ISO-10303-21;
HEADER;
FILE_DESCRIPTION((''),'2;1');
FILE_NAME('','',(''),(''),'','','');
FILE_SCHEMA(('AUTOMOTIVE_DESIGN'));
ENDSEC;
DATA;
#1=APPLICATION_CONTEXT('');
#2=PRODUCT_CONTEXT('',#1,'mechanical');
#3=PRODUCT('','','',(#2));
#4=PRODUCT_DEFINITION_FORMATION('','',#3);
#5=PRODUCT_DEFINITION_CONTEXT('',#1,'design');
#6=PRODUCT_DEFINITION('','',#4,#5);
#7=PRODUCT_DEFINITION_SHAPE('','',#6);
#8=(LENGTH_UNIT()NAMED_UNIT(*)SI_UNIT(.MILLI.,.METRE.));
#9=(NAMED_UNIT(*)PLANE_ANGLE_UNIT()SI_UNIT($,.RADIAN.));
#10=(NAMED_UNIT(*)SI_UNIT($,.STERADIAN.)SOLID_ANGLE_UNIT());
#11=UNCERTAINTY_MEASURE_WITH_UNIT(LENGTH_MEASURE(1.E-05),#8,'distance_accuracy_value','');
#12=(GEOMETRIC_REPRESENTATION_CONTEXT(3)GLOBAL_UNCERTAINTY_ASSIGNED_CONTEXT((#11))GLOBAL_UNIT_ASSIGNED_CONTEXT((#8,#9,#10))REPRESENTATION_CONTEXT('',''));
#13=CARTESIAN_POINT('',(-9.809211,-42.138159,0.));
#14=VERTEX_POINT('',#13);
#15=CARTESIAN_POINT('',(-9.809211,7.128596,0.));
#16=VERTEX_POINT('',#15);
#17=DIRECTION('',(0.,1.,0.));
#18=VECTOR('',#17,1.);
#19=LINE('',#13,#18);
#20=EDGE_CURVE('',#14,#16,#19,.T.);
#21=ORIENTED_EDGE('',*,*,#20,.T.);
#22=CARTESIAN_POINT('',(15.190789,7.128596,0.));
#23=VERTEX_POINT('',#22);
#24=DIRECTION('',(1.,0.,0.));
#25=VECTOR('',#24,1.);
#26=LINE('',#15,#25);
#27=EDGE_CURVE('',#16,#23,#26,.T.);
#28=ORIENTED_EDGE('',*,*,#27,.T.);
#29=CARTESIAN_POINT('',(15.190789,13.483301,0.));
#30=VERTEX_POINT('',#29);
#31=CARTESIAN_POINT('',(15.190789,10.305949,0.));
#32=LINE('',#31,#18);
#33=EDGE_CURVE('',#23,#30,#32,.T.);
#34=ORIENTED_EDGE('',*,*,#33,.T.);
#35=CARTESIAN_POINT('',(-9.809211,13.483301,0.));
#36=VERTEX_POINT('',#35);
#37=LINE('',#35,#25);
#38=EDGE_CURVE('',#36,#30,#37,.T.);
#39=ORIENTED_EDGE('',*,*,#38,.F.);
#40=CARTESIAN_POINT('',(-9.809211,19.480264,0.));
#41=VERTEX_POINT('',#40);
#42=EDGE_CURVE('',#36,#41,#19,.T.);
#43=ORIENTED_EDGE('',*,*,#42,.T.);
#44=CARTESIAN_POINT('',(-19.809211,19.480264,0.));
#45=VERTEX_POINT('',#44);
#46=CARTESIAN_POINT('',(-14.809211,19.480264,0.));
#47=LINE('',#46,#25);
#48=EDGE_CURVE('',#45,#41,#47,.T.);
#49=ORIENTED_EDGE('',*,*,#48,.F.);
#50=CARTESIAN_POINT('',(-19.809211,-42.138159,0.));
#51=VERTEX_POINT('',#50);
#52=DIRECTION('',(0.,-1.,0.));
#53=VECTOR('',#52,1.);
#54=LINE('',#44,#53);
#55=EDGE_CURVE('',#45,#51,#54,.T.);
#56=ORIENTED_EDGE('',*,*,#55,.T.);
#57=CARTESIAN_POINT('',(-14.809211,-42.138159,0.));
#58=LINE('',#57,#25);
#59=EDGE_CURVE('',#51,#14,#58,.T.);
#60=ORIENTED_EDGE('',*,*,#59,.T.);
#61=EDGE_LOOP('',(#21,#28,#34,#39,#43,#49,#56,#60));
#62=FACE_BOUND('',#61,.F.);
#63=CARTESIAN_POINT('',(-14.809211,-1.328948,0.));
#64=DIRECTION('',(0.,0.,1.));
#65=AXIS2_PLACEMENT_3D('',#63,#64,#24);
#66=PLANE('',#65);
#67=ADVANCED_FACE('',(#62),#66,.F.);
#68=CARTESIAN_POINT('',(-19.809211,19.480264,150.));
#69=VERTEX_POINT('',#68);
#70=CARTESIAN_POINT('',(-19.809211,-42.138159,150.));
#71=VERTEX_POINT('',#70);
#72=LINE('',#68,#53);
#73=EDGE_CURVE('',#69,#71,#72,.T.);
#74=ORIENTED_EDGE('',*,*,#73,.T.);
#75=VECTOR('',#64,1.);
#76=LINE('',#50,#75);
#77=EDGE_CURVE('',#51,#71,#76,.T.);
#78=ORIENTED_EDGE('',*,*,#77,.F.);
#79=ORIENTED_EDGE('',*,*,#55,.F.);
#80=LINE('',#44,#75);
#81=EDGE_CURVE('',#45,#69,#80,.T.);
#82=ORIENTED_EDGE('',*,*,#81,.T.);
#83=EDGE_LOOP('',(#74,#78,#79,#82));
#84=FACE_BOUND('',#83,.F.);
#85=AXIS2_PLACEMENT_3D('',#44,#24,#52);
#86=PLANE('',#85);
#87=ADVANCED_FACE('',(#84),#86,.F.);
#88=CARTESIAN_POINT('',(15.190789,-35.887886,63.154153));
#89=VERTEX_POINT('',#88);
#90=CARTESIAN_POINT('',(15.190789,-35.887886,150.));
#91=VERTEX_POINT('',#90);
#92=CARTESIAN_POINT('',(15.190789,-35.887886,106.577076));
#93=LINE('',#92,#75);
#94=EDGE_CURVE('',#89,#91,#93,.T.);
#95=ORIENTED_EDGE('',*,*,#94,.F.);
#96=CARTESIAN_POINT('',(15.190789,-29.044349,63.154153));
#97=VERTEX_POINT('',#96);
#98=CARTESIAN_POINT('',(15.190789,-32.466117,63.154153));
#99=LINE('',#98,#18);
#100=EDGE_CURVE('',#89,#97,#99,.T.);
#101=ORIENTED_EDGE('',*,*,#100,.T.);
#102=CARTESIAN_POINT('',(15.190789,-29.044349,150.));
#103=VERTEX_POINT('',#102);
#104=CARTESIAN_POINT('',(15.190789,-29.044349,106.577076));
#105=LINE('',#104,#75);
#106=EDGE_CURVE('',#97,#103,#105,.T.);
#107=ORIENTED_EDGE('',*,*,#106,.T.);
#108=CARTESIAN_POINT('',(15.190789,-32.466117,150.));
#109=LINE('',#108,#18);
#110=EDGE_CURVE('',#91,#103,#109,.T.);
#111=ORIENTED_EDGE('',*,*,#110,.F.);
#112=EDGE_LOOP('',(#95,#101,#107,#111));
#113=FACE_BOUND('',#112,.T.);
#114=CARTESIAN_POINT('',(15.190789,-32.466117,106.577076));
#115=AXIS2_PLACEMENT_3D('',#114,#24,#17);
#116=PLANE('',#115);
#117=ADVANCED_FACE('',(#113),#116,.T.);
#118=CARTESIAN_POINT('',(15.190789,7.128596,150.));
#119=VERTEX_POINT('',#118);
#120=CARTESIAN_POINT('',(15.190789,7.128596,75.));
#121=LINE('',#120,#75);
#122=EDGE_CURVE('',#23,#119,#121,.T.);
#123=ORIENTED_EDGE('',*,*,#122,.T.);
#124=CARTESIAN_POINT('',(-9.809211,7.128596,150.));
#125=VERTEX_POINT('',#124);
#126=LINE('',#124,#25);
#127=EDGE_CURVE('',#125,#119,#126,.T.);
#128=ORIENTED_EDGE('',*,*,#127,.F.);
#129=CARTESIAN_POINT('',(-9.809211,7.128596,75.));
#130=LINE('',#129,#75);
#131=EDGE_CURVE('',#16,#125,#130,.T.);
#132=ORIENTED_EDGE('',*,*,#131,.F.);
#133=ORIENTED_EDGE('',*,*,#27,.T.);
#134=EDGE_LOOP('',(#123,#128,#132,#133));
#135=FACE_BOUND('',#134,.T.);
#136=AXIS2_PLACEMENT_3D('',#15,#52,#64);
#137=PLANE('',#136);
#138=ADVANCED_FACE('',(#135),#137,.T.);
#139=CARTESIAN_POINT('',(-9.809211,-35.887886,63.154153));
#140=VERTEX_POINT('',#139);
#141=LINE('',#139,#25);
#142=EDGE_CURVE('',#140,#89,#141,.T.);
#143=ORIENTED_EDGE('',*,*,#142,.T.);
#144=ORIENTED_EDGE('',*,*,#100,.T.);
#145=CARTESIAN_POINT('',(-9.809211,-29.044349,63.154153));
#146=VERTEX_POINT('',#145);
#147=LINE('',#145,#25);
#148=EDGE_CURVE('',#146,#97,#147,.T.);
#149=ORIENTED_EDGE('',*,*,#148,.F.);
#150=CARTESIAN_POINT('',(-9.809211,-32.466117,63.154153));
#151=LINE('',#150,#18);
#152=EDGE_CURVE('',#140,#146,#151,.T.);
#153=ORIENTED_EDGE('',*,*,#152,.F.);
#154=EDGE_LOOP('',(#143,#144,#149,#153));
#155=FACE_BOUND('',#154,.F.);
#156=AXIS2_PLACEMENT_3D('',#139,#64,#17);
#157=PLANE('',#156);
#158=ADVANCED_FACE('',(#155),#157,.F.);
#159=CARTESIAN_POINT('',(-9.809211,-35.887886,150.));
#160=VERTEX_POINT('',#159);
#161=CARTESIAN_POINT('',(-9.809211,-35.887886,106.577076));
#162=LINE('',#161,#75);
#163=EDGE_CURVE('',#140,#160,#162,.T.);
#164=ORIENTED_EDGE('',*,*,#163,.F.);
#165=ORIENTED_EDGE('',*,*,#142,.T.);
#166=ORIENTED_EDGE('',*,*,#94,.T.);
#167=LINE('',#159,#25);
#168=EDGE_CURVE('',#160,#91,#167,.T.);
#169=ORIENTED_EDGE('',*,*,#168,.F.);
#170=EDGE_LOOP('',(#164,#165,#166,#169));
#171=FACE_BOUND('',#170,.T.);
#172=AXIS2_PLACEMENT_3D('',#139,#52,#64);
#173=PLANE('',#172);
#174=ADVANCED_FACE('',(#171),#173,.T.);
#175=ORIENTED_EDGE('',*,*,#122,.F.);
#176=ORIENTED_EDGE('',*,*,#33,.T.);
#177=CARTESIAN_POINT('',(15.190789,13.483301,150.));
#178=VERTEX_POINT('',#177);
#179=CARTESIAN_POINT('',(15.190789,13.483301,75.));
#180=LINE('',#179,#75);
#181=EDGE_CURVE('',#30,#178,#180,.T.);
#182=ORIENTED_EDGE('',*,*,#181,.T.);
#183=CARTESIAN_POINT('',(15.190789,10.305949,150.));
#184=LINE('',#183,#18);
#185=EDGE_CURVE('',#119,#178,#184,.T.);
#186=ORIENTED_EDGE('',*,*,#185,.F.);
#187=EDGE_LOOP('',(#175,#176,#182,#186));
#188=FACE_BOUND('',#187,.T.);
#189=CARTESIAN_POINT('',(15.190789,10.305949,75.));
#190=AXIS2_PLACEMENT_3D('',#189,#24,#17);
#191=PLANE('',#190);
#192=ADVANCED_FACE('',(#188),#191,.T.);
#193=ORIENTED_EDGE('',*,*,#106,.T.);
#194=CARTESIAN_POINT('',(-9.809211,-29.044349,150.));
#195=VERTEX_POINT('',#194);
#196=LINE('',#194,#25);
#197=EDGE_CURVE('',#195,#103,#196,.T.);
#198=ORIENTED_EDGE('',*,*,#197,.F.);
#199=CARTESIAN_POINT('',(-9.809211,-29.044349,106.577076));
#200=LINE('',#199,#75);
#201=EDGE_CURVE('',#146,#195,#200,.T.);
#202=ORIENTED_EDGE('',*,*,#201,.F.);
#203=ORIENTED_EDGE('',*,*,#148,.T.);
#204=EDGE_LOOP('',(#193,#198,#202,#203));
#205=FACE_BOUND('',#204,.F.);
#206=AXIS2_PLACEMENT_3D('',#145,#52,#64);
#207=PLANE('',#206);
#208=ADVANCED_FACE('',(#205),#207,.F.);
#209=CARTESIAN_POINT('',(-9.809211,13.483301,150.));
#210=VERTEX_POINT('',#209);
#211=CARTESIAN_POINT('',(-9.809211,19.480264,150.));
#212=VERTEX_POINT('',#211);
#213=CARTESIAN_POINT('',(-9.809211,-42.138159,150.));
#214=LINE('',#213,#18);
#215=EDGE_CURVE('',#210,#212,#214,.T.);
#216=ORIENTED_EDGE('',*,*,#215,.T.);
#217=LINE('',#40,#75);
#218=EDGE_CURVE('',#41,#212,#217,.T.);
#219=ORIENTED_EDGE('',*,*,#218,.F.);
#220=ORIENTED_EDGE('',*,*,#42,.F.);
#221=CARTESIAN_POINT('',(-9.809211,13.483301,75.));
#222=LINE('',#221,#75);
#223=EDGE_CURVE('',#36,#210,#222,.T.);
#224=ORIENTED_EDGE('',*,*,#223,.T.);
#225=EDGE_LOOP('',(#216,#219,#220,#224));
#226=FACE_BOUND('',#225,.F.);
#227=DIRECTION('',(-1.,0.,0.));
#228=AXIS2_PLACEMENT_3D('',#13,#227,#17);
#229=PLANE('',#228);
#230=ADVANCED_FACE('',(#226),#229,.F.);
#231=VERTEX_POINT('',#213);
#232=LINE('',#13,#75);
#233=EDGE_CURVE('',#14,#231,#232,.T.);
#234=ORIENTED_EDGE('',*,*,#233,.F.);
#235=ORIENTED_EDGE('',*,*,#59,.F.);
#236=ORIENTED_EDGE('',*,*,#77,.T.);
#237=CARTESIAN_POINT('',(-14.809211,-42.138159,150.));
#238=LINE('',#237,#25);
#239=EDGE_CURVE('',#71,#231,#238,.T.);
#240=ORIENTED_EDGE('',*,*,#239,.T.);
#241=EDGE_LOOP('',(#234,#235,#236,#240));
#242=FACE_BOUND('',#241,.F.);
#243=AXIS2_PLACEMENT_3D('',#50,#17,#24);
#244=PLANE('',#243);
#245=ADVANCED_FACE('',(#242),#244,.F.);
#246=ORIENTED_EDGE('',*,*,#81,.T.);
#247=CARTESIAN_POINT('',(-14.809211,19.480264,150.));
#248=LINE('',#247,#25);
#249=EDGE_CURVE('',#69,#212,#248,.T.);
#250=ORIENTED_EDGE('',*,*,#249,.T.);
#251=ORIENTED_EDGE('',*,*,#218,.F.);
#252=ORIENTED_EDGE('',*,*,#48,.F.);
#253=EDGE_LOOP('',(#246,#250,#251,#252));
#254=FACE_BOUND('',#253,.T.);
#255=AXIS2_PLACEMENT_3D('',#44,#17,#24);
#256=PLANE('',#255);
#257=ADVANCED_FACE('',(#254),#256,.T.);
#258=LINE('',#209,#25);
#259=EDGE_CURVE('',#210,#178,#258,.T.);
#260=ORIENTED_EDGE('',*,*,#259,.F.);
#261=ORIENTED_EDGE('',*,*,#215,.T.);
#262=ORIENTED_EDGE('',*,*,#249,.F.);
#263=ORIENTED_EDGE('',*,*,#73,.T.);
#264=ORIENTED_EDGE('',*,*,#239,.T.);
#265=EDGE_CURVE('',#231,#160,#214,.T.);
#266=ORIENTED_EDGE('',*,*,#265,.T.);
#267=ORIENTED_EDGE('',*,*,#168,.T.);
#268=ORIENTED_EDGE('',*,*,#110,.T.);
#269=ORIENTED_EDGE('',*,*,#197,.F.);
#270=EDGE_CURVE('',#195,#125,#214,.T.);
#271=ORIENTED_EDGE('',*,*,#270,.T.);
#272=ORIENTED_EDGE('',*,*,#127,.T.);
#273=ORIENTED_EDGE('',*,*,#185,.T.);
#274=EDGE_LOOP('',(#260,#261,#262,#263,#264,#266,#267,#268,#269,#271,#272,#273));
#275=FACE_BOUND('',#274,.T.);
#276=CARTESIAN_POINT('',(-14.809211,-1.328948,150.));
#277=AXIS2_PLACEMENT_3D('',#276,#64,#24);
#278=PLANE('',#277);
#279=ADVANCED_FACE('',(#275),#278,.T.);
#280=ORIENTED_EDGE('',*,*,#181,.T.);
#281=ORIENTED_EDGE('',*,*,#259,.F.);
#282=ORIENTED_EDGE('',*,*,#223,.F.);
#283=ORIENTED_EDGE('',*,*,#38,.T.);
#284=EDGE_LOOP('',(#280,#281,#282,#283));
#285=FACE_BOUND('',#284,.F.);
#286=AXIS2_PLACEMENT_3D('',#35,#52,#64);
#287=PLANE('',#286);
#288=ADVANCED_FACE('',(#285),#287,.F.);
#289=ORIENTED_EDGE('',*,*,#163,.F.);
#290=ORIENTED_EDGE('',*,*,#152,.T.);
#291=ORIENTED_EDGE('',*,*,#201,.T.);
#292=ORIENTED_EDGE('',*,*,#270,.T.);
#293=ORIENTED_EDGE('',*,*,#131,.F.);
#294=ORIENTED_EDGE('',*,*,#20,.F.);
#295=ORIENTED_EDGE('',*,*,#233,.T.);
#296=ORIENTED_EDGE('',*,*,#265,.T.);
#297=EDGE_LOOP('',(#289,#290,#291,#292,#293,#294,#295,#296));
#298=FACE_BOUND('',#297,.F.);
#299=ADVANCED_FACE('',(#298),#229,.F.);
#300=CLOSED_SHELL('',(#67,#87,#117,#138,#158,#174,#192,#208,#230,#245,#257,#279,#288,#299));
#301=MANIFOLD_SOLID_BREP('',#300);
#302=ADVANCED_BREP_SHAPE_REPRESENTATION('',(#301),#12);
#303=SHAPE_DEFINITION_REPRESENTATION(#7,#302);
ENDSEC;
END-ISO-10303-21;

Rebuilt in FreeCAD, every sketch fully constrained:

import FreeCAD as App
import Part
import Sketcher
from FreeCAD import Vector


def add_polygon(sketch, points):
    """Adds a closed chain of lines whose ends are joined by coincident constraints."""
    first, n = sketch.GeometryCount, len(points)
    for a, b in zip(points, points[1:] + points[:1]):
        sketch.addGeometry(Part.LineSegment(App.Vector(*a, 0), App.Vector(*b, 0)), False)
    for i in range(n):
        sketch.addConstraint(Sketcher.Constraint("Coincident", first + i, 2, first + (i + 1) % n, 1))

doc = App.newDocument("Part")
body = doc.addObject("PartDesign::Body", "Body")

# Sketch on XY plane
sketch1 = doc.addObject("Sketcher::SketchObject", "Sketch")
body.addObject(sketch1)
sketch1.AttachmentSupport = (doc.XY_Plane, [""])
sketch1.MapMode = "FlatFace"
add_polygon(sketch1, [(-10, 19), (-20, 19), (-20, -42), (-10, -42)])  # lines 0-3
sketch1.addConstraint(Sketcher.Constraint("Horizontal", 0))
sketch1.addConstraint(Sketcher.Constraint("Vertical", 1))
sketch1.addConstraint(Sketcher.Constraint("Horizontal", 2))
sketch1.addConstraint(Sketcher.Constraint("Vertical", 3))
sketch1.addConstraint(Sketcher.Constraint("DistanceX", 0, 2, 0, 1, 10.0))
sketch1.addConstraint(Sketcher.Constraint("DistanceY", 1, 2, 1, 1, 61.618423))
sketch1.addConstraint(Sketcher.Constraint("DistanceX", 0, 2, -1, 1, 19.809211))
sketch1.addConstraint(Sketcher.Constraint("DistanceY", 1, 2, -1, 1, 42.138159))
pad1 = doc.addObject("PartDesign::Pad", "Pad")
body.addObject(pad1)
pad1.Profile = sketch1
pad1.Length = 150

# Sketch on YZ plane
sketch2 = doc.addObject("Sketcher::SketchObject", "Sketch001")
body.addObject(sketch2)
sketch2.AttachmentSupport = (doc.YZ_Plane, [""])
sketch2.MapMode = "FlatFace"
sketch2.AttachmentOffset = App.Placement(Vector(0, 0, -9.809211), App.Rotation())
add_polygon(sketch2, [(7, 150), (7, 0), (13, 0), (13, 150)])  # lines 0-3
add_polygon(sketch2, [(-36, 150), (-36, 63), (-29, 63), (-29, 150)])  # lines 4-7
sketch2.addConstraint(Sketcher.Constraint("Vertical", 0))
sketch2.addConstraint(Sketcher.Constraint("Horizontal", 1))
sketch2.addConstraint(Sketcher.Constraint("Vertical", 2))
sketch2.addConstraint(Sketcher.Constraint("Horizontal", 3))
sketch2.addConstraint(Sketcher.Constraint("Vertical", 4))
sketch2.addConstraint(Sketcher.Constraint("Horizontal", 5))
sketch2.addConstraint(Sketcher.Constraint("Vertical", 6))
sketch2.addConstraint(Sketcher.Constraint("Horizontal", 7))
sketch2.addConstraint(Sketcher.Constraint("PointOnObject", 0, 2, -1))
sketch2.addConstraint(Sketcher.Constraint("Horizontal", 3, 2, 6, 2))
sketch2.addConstraint(Sketcher.Constraint("DistanceY", 0, 2, 0, 1, 150.0))
sketch2.addConstraint(Sketcher.Constraint("DistanceX", -1, 1, 1, 2, 13.483301))
sketch2.addConstraint(Sketcher.Constraint("DistanceX", 1, 1, 1, 2, 6.354704))
sketch2.addConstraint(Sketcher.Constraint("DistanceX", 5, 1, 5, 2, 6.843537))
sketch2.addConstraint(Sketcher.Constraint("DistanceY", 4, 2, 4, 1, 86.845847))
sketch2.addConstraint(Sketcher.Constraint("DistanceX", 5, 2, -1, 1, 29.044349))
pad2 = doc.addObject("PartDesign::Pad", "Pad001")
body.addObject(pad2)
pad2.Profile = sketch2
pad2.Length = 25

doc.recompute()
